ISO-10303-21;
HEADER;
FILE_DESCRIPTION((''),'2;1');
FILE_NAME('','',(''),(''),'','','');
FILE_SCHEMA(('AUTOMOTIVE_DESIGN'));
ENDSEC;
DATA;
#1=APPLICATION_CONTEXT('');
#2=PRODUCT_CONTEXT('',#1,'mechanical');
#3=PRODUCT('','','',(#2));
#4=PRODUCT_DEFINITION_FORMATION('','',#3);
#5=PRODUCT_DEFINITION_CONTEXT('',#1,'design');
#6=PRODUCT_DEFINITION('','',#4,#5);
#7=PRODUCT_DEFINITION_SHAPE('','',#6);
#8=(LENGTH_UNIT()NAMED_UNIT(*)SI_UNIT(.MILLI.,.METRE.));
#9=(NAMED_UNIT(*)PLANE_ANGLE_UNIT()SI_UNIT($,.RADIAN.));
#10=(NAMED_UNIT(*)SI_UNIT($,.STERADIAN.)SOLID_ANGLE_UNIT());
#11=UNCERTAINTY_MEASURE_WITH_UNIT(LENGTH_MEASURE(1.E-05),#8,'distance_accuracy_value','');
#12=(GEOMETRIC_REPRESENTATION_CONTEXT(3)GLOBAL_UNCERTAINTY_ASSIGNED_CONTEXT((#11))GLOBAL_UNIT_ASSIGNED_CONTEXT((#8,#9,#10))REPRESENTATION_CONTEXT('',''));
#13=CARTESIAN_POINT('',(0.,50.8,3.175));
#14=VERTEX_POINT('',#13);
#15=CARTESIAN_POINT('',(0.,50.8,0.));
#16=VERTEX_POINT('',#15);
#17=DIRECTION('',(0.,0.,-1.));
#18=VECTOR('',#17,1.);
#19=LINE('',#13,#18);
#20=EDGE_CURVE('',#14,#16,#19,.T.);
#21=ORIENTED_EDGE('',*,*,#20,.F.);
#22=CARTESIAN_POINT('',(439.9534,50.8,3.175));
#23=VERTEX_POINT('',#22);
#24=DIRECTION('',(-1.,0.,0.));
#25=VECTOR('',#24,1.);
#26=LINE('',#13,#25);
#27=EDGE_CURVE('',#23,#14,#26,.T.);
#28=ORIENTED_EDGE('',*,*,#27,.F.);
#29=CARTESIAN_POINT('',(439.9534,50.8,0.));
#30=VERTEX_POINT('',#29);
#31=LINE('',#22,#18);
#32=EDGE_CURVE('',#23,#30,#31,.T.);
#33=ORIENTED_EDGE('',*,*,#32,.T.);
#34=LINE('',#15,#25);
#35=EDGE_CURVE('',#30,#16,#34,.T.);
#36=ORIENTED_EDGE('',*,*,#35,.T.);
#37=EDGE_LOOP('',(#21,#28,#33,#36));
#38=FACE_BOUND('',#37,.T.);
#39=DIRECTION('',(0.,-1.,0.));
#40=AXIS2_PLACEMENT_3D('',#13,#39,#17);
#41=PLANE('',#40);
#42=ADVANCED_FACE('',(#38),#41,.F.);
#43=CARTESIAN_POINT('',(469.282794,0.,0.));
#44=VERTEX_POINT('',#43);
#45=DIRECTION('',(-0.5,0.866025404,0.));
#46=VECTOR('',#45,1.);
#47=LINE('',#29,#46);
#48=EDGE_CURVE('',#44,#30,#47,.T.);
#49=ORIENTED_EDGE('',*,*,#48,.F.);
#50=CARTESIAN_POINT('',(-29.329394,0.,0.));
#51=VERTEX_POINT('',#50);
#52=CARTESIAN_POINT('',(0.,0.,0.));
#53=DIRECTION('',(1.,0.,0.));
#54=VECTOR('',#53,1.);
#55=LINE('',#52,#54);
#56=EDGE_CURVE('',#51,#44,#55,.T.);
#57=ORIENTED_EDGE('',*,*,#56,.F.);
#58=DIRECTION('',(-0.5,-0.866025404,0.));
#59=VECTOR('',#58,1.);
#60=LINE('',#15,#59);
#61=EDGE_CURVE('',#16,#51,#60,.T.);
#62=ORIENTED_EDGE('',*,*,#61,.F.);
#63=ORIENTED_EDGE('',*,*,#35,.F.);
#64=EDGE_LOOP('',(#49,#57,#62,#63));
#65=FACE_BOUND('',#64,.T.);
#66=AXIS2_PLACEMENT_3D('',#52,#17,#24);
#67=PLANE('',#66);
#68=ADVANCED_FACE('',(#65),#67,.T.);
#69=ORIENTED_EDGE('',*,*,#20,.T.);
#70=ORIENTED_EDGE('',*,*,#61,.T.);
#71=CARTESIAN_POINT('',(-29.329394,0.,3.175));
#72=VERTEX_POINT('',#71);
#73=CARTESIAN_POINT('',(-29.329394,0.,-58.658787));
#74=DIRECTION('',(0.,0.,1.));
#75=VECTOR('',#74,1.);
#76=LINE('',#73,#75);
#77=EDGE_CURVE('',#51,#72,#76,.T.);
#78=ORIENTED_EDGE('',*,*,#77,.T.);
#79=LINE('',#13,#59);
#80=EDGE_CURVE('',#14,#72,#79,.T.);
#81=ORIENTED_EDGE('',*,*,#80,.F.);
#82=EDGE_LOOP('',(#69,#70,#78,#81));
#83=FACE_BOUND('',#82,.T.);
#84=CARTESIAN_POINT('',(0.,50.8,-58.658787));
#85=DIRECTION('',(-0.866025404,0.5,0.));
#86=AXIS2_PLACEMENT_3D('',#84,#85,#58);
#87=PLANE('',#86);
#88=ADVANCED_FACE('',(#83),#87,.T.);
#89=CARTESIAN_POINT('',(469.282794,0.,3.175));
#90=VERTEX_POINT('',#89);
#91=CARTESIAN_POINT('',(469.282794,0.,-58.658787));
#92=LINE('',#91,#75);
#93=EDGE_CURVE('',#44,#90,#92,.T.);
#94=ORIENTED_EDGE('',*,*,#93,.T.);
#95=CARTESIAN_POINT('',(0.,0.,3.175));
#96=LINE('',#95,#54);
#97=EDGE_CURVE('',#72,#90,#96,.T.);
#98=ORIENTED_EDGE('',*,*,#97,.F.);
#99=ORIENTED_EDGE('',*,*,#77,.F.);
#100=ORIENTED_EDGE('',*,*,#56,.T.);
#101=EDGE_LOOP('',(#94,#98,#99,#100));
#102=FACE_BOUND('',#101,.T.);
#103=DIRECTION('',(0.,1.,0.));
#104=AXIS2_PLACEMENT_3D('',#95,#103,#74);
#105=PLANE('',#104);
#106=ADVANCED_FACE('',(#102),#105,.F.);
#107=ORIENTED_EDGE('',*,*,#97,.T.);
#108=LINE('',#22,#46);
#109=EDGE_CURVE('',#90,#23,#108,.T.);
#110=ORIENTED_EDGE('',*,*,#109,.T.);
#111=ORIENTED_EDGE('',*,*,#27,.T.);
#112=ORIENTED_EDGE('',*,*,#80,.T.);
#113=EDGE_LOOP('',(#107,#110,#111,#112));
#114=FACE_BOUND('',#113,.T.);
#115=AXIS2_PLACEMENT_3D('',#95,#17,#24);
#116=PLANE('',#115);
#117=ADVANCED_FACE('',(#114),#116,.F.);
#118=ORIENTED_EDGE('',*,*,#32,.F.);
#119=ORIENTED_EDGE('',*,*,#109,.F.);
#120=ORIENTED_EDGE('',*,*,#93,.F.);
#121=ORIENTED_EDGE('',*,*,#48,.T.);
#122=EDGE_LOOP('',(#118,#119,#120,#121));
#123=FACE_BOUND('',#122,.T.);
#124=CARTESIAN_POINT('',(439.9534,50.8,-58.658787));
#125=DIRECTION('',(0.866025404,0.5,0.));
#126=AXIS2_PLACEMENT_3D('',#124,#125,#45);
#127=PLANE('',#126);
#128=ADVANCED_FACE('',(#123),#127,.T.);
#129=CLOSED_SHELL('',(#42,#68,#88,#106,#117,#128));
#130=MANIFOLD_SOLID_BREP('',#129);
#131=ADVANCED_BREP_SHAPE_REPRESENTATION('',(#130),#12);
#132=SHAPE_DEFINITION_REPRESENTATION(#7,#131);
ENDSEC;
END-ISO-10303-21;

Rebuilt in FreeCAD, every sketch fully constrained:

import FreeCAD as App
import Part
import Sketcher

V = App.Vector
Q = App.Units.Quantity


def add_polygon(sketch, points):
    """Adds a closed chain of lines whose ends are joined by coincident constraints."""
    first, n = sketch.GeometryCount, len(points)
    for a, b in zip(points, points[1:] + points[:1]):
        sketch.addGeometry(Part.LineSegment(App.Vector(*a, 0), App.Vector(*b, 0)), False)
    for i in range(n):
        sketch.addConstraint(Sketcher.Constraint("Coincident", first + i, 2, first + (i + 1) % n, 1))

doc = App.newDocument("Part")
body = doc.addObject("PartDesign::Body", "Body")

# Sketch on XY plane
sketch1 = body.newObject("Sketcher::SketchObject", "Sketch")
sketch1.AttachmentSupport = (doc.getObject("XY_Plane"), [""])
sketch1.MapMode = "FlatFace"
add_polygon(sketch1, [(0, 50.8), (0, 0), (439.9534, 0), (439.9534, 50.8)])  # lines 0-3
sketch1.addConstraint([
    Sketcher.Constraint("Vertical", 0),
    Sketcher.Constraint("Horizontal", 1),
    Sketcher.Constraint("Vertical", 2),
    Sketcher.Constraint("Horizontal", 3),
    Sketcher.Constraint("Coincident", 0, 2, -1, 1),
    Sketcher.Constraint("DistanceY", 0, 2, 0, 1, Q("2 in")),
    Sketcher.Constraint("DistanceX", 1, 1, 1, 2, Q("17.321 in")),
])
pad1 = body.newObject("PartDesign::Pad", "Pad")
pad1.Profile = sketch1
pad1.Length = Q("0.125 in")

# Sketch on XY plane
sketch2 = body.newObject("Sketcher::SketchObject", "Sketch001")
sketch2.AttachmentSupport = (doc.getObject("XY_Plane"), [""])
sketch2.MapMode = "FlatFace"
sketch2.AttachmentOffset = App.Placement(V(0, 0, 0.125 * 25.4), App.Rotation())
add_polygon(sketch2, [(0, 50.8), (-29.329394, 0), (0, 0)])  # lines 0-2
add_polygon(sketch2, [(439.9534, 0), (469.282794, 0), (439.9534, 50.8)])  # lines 3-5
sketch2.addConstraint([
    Sketcher.Constraint("Horizontal", 1),
    Sketcher.Constraint("Vertical", 2),
    Sketcher.Constraint("Horizontal", 3),
    Sketcher.Constraint("Vertical", 5),
    Sketcher.Constraint("Coincident", 1, 2, -1, 1),
    Sketcher.Constraint("PointOnObject", 3, 2, -1),
    Sketcher.Constraint("Horizontal", 2, 2, 4, 2),
    Sketcher.Constraint("Equal", 1, 3),
    Sketcher.Constraint("DistanceY", 2, 1, 2, 2, Q("2 in")),
    Sketcher.Constraint("Angle", 0, Q("-120 deg")),
    Sketcher.Constraint("DistanceX", -1, 1, 4, 2, Q("17.321 in")),
])
pad2 = body.newObject("PartDesign::Pad", "Pad001")
pad2.Profile = sketch2
pad2.Length = Q("0.125 in")
pad2.Reversed = True

doc.recompute()
